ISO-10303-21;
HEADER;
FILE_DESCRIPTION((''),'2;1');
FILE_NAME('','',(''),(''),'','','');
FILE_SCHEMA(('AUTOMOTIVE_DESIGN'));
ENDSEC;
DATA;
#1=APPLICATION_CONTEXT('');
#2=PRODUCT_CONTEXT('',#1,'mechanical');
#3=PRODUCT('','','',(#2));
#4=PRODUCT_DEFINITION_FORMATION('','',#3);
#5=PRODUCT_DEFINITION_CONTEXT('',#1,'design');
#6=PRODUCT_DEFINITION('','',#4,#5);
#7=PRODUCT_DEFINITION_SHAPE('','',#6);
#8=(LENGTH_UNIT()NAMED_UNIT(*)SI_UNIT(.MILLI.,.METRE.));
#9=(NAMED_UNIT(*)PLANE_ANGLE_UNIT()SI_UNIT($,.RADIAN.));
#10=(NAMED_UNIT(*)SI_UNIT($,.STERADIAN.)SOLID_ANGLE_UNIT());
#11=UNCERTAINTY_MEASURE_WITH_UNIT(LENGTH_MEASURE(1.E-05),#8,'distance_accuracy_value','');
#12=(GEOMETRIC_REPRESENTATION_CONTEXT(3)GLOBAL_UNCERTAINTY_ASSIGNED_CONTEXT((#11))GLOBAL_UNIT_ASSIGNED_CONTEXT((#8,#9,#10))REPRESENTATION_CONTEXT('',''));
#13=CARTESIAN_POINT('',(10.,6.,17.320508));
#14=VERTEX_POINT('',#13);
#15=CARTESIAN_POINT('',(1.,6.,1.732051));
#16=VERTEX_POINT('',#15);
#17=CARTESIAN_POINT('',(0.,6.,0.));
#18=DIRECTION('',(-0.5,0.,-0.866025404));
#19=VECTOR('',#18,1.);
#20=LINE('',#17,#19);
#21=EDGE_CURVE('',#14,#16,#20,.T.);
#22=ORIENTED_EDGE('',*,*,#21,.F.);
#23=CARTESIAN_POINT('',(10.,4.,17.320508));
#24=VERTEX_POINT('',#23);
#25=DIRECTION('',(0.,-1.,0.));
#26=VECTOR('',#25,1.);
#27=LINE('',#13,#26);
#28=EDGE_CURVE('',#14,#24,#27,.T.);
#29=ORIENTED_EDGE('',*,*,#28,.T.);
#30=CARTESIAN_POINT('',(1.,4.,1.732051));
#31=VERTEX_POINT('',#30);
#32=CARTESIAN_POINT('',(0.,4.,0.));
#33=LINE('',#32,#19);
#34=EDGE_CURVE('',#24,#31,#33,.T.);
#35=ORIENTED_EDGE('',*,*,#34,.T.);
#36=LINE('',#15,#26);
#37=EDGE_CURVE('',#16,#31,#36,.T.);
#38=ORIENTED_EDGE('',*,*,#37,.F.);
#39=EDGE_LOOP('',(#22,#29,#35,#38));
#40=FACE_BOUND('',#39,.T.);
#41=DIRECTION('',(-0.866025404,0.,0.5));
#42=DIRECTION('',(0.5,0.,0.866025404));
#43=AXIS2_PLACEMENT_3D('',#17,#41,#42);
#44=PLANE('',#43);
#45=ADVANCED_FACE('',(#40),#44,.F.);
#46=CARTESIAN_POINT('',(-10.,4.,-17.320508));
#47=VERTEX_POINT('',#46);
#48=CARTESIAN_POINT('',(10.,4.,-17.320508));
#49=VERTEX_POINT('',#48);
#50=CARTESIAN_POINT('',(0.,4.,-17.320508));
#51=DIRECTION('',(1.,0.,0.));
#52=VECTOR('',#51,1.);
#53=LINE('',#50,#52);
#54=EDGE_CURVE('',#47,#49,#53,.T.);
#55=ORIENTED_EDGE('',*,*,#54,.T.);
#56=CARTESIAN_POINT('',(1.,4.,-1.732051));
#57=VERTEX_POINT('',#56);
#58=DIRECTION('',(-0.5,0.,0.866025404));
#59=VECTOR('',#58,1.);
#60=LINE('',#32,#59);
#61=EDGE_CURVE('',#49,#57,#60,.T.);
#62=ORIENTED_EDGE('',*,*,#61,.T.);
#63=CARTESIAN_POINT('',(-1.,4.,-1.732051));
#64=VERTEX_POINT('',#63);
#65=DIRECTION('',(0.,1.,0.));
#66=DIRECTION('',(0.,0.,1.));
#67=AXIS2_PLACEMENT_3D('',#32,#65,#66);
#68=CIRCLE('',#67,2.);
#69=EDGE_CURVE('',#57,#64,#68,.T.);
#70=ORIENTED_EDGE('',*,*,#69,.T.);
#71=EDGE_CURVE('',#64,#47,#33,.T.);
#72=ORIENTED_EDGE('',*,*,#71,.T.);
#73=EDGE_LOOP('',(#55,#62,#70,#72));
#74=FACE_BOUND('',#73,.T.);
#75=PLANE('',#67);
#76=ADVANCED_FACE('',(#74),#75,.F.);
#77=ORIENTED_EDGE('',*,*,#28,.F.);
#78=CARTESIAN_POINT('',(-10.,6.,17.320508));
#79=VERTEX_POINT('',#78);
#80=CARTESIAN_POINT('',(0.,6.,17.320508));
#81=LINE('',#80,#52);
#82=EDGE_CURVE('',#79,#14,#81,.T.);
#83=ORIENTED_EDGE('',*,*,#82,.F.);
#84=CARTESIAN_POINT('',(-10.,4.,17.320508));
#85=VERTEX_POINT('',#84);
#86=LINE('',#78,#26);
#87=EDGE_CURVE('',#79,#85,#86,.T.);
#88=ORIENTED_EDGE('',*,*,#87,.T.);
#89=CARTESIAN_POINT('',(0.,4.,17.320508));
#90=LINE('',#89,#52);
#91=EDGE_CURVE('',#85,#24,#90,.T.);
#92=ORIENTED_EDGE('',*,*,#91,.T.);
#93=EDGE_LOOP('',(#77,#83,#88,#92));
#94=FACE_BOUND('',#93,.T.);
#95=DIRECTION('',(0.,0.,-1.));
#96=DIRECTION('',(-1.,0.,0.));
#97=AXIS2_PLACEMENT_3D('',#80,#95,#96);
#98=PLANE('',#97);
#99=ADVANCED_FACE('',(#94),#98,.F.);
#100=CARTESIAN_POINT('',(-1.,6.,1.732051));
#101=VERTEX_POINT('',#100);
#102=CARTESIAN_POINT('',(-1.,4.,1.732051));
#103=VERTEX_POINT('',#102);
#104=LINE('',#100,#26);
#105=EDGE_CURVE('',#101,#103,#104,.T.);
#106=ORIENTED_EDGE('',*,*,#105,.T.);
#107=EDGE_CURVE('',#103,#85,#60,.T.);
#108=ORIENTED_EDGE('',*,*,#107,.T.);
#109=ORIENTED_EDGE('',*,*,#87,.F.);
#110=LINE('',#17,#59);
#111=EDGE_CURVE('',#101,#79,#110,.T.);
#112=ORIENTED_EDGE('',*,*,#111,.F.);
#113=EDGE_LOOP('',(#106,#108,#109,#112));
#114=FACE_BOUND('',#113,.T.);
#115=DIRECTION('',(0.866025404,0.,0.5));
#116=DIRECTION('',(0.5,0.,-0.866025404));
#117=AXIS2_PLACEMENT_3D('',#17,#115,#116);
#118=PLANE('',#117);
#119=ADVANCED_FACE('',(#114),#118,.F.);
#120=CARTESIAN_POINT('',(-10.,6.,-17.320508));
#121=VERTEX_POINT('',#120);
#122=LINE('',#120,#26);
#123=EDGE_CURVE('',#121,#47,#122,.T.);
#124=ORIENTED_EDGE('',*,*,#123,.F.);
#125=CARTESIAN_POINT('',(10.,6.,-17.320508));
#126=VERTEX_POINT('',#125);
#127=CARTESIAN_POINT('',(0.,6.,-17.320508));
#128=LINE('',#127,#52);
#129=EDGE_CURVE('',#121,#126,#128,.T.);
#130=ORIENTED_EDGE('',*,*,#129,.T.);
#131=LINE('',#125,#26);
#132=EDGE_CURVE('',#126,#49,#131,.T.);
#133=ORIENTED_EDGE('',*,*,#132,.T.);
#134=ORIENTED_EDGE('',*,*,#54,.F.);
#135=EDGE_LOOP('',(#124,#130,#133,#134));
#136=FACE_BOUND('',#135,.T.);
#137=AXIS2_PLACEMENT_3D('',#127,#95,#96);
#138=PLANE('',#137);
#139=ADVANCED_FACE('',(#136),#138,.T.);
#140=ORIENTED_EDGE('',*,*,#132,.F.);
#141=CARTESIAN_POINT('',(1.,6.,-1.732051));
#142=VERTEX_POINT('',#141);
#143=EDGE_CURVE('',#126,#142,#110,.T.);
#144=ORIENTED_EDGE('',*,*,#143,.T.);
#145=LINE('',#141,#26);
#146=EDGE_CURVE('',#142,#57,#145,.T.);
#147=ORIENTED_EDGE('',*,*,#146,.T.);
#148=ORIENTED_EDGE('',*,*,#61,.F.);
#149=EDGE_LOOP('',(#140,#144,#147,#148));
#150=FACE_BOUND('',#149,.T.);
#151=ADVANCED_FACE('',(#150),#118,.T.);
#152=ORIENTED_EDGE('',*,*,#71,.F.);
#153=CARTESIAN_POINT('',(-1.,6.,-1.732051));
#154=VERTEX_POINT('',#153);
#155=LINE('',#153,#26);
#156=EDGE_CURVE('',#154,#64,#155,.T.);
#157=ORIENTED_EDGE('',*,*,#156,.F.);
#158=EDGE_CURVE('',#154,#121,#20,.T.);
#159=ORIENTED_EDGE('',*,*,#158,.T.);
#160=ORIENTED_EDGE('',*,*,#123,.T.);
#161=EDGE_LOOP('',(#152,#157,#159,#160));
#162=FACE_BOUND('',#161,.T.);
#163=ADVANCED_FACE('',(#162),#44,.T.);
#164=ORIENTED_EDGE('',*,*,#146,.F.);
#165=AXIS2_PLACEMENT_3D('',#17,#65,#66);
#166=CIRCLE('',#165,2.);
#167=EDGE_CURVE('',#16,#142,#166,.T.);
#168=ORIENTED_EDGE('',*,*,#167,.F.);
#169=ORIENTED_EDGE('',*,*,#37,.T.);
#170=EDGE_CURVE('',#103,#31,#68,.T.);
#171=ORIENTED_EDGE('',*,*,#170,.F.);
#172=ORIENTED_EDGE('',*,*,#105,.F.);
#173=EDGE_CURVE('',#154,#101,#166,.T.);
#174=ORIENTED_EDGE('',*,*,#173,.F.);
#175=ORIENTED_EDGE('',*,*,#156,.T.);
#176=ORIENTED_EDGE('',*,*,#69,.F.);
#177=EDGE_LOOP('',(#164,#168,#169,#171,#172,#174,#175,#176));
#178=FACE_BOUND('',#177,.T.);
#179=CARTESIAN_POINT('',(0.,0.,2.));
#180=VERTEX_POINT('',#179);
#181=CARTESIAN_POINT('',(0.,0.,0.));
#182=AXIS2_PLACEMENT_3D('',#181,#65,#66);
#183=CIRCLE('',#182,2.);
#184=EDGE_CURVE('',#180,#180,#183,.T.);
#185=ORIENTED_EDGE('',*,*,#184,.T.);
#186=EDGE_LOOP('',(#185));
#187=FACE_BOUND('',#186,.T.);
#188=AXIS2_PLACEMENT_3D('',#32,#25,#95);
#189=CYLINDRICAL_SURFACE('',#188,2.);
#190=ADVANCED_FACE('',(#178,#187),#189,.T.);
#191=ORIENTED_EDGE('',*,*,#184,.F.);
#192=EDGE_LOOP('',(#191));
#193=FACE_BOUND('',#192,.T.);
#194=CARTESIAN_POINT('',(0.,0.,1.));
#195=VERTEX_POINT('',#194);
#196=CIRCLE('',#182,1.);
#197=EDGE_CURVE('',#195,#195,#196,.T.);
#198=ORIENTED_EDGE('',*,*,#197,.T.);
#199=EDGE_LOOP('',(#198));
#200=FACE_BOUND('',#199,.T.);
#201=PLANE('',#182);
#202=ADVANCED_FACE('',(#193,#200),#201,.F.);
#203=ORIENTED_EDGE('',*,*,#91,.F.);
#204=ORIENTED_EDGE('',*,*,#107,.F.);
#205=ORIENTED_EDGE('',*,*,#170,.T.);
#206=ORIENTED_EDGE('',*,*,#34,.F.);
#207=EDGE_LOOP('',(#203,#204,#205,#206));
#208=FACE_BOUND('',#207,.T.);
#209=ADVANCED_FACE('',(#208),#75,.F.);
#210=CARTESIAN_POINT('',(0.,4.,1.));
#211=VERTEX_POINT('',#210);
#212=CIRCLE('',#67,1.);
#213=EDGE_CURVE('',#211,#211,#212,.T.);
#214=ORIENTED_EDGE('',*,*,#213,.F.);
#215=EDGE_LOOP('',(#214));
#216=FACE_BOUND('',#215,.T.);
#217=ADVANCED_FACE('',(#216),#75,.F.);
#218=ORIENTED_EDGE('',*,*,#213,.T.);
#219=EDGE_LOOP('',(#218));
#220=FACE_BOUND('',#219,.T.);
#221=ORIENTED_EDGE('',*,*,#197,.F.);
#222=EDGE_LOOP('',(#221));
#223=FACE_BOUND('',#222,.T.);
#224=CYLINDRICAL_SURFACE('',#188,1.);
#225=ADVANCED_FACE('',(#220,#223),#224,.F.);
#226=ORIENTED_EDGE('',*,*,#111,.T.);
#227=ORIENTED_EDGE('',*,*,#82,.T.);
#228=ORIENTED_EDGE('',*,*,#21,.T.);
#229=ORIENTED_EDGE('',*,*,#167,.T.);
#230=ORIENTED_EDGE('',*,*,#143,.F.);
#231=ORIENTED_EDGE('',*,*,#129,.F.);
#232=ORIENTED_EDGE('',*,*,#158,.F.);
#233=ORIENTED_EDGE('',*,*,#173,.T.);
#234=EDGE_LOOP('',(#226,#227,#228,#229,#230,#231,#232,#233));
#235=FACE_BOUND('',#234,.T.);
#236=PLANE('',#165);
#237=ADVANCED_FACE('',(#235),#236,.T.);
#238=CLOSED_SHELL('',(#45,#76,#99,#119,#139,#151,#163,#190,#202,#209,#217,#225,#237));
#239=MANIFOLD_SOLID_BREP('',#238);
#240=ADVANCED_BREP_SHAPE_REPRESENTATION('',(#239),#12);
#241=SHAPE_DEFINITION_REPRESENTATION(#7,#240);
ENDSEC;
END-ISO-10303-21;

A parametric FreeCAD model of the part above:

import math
import FreeCAD as App
import Part
import Sketcher
from FreeCAD import Vector
Q = App.Units.Quantity

doc = App.newDocument("Part")
body = doc.addObject("PartDesign::Body", "Body")

# Sketch on XZ plane
sketch1 = body.newObject("Sketcher::SketchObject", "Sketch")
sketch1.AttachmentSupport = (doc.getObject("XZ_Plane"), [""])
sketch1.MapMode = "FlatFace"
sketch1.addGeometry(Part.Circle(Vector(0, 0, 0), Vector(0, 0, 1), 2), False)
sketch1.addGeometry(Part.Circle(Vector(0, 0, 0), Vector(0, 0, 1), 1), False)
sketch1.addConstraint(Sketcher.Constraint("Coincident", 0, 3, -1, 1))
sketch1.addConstraint(Sketcher.Constraint("Coincident", 1, 3, -1, 1))
sketch1.addConstraint(Sketcher.Constraint("Diameter", 0, Q("4 mm")))
sketch1.addConstraint(Sketcher.Constraint("Diameter", 1, Q("2 mm")))
pad1 = body.newObject("PartDesign::Pad", "Pad")
pad1.Profile = sketch1
pad1.Length = 4
pad1.Reversed = True

# Sketch on XZ plane
sketch2 = body.newObject("Sketcher::SketchObject", "Sketch001")
sketch2.AttachmentSupport = (doc.getObject("XZ_Plane"), [""])
sketch2.MapMode = "FlatFace"
sketch2.AttachmentOffset = App.Placement(Vector(0, 0, -4), App.Rotation())
sketch2.addGeometry(Part.ArcOfCircle(Part.Circle(Vector(0, 0, 0), Vector(0, 0, 1), 2), math.radians(-60), math.radians(60)), False)
sketch2.addGeometry(Part.LineSegment(Vector(1, -1.7, 0), Vector(10, -17.3, 0)), False)
sketch2.addGeometry(Part.LineSegment(Vector(10, -17.3, 0), Vector(-10, -17.3, 0)), False)
sketch2.addGeometry(Part.LineSegment(Vector(-10, -17.3, 0), Vector(-1, -1.7, 0)), False)
sketch2.addGeometry(Part.ArcOfCircle(Part.Circle(Vector(0, 0, 0), Vector(0, 0, 1), 2), math.radians(120), math.radians(240)), False)
sketch2.addGeometry(Part.LineSegment(Vector(-1, 1.7, 0), Vector(-10, 17.3, 0)), False)
sketch2.addGeometry(Part.LineSegment(Vector(-10, 17.3, 0), Vector(10, 17.3, 0)), False)
sketch2.addGeometry(Part.LineSegment(Vector(10, 17.3, 0), Vector(1, 1.7, 0)), False)
sketch2.addConstraint(Sketcher.Constraint("Coincident", 0, 1, 1, 1))
sketch2.addConstraint(Sketcher.Constraint("Coincident", 1, 2, 2, 1))
sketch2.addConstraint(Sketcher.Constraint("Coincident", 2, 2, 3, 1))
sketch2.addConstraint(Sketcher.Constraint("Coincident", 3, 2, 4, 2))
sketch2.addConstraint(Sketcher.Constraint("Coincident", 4, 1, 5, 1))
sketch2.addConstraint(Sketcher.Constraint("Coincident", 5, 2, 6, 1))
sketch2.addConstraint(Sketcher.Constraint("Coincident", 6, 2, 7, 1))
sketch2.addConstraint(Sketcher.Constraint("Coincident", 7, 2, 0, 2))
sketch2.addConstraint(Sketcher.Constraint("Horizontal", 2))
sketch2.addConstraint(Sketcher.Constraint("Horizontal", 6))
sketch2.addConstraint(Sketcher.Constraint("Coincident", 0, 3, -1, 1))
sketch2.addConstraint(Sketcher.Constraint("Coincident", 4, 3, -1, 1))
sketch2.addConstraint(Sketcher.Constraint("Equal", 0, 4))
sketch2.addConstraint(Sketcher.Constraint("Symmetric", 1, 2, 5, 2, -1, 1))
sketch2.addConstraint(Sketcher.Constraint("Parallel", 1, 5))
sketch2.addConstraint(Sketcher.Constraint("Parallel", 3, 7))
sketch2.addConstraint(Sketcher.Constraint("Horizontal", 0, 1, 3, 2))
sketch2.addConstraint(Sketcher.Constraint("Horizontal", 4, 1, 7, 2))
sketch2.addConstraint(Sketcher.Constraint("Vertical", 2, 2, 5, 2))
sketch2.addConstraint(Sketcher.Constraint("Radius", 0, Q("2 mm")))
sketch2.addConstraint(Sketcher.Constraint("DistanceX", 2, 2, 2, 1, Q("20 mm")))
sketch2.addConstraint(Sketcher.Constraint("Angle", 1, Q("-60 deg")))
sketch2.addConstraint(Sketcher.Constraint("Distance", 1, Q("18 mm")))
pad2 = body.newObject("PartDesign::Pad", "Pad001")
pad2.Profile = sketch2
pad2.Length = 2
pad2.Reversed = True

doc.recompute()
